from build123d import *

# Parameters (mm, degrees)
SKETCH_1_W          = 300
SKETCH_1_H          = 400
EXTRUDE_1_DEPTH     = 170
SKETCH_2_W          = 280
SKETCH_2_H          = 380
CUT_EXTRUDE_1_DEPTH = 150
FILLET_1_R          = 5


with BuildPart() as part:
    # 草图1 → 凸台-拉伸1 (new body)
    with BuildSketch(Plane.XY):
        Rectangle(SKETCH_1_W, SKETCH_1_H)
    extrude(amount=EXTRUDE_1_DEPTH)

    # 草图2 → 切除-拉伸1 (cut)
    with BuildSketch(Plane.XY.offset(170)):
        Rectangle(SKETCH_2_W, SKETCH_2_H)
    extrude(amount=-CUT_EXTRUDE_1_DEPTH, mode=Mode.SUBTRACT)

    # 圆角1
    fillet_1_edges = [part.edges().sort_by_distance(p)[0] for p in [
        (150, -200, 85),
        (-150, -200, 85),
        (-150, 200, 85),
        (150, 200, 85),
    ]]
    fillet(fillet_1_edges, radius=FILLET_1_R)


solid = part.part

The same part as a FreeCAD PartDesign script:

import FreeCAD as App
import Part
import Sketcher

V = App.Vector


def edges_at(feature, points):
    """Names of the edges that pass closest to the given points."""
    edges = feature.Shape.Edges
    near = lambda p: min(range(len(edges)), key=lambda i: edges[i].distToShape(Part.Vertex(*p))[0])
    return sorted({f"Edge{near(p) + 1}" for p in points})


def add_polygon(sketch, points):
    """Adds a closed chain of lines whose ends are joined by coincident constraints."""
    first, n = sketch.GeometryCount, len(points)
    for a, b in zip(points, points[1:] + points[:1]):
        sketch.addGeometry(Part.LineSegment(App.Vector(*a, 0), App.Vector(*b, 0)), False)
    for i in range(n):
        sketch.addConstraint(Sketcher.Constraint("Coincident", first + i, 2, first + (i + 1) % n, 1))

doc = App.newDocument("Part")
params = doc.addObject("Spreadsheet::Sheet", "Params")
for row, (alias, value) in enumerate([
    ("sketch1_width", "300 mm"),
    ("sketch1_height", "400 mm"),
    ("pad1_length", "170 mm"),
    ("sketch2_width", "280 mm"),
    ("sketch2_height", "380 mm"),
    ("pocket1_length", "150 mm"),
    ("fillet_radius", "5 mm"),
], start=1):
    params.set(f"A{row}", alias)
    params.set(f"B{row}", "=" + value)
    params.setAlias(f"B{row}", alias)

body = doc.addObject("PartDesign::Body", "Body")

# Sketch on XY plane
sketch1 = doc.addObject("Sketcher::SketchObject", "Sketch")
body.addObject(sketch1)
sketch1.AttachmentSupport = (doc.XY_Plane, [""])
sketch1.MapMode = "FlatFace"
add_polygon(sketch1, [(-150, 200), (-150, -200), (150, -200), (150, 200)])  # lines 0-3
sketch1.addConstraint([
    Sketcher.Constraint("Vertical", 0),
    Sketcher.Constraint("Horizontal", 1),
    Sketcher.Constraint("Vertical", 2),
    Sketcher.Constraint("Horizontal", 3),
    Sketcher.Constraint("Symmetric", 0, 2, 2, 2, -1, 1),
    Sketcher.Constraint("DistanceX", 1, 1, 1, 2, 300.0),
    Sketcher.Constraint("DistanceY", 0, 2, 0, 1, 400.0),
])
sketch1.setExpression("Constraints[9]", "Params.sketch1_width")
sketch1.setExpression("Constraints[10]", "Params.sketch1_height")
pad1 = doc.addObject("PartDesign::Pad", "Pad")
body.addObject(pad1)
pad1.Profile = sketch1
pad1.setExpression("Length", "Params.pad1_length")

# Sketch on XY plane
sketch2 = doc.addObject("Sketcher::SketchObject", "Sketch001")
body.addObject(sketch2)
sketch2.AttachmentSupport = (doc.XY_Plane, [""])
sketch2.MapMode = "FlatFace"
sketch2.AttachmentOffset = App.Placement(V(0, 0, 170), App.Rotation())
add_polygon(sketch2, [(-140, 190), (-140, -190), (140, -190), (140, 190)])  # lines 0-3
sketch2.addConstraint([
    Sketcher.Constraint("Vertical", 0),
    Sketcher.Constraint("Horizontal", 1),
    Sketcher.Constraint("Vertical", 2),
    Sketcher.Constraint("Horizontal", 3),
    Sketcher.Constraint("Symmetric", 0, 2, 2, 2, -1, 1),
    Sketcher.Constraint("DistanceX", 1, 1, 1, 2, 280.0),
    Sketcher.Constraint("DistanceY", 0, 2, 0, 1, 380.0),
])
sketch2.setExpression("Constraints[9]", "Params.sketch2_width")
sketch2.setExpression("Constraints[10]", "Params.sketch2_height")
pocket1 = doc.addObject("PartDesign::Pocket", "Pocket")
body.addObject(pocket1)
pocket1.Profile = sketch2
pocket1.setExpression("Length", "Params.pocket1_length")
doc.recompute()

fillet = doc.addObject("PartDesign::Fillet", "Fillet")
body.addObject(fillet)
fillet.Base = (pocket1, edges_at(pocket1, [
    (150, -200, 85),
    (-150, -200, 85),
    (-150, 200, 85),
    (150, 200, 85),
]))
fillet.setExpression("Radius", "Params.fillet_radius")

doc.recompute()
